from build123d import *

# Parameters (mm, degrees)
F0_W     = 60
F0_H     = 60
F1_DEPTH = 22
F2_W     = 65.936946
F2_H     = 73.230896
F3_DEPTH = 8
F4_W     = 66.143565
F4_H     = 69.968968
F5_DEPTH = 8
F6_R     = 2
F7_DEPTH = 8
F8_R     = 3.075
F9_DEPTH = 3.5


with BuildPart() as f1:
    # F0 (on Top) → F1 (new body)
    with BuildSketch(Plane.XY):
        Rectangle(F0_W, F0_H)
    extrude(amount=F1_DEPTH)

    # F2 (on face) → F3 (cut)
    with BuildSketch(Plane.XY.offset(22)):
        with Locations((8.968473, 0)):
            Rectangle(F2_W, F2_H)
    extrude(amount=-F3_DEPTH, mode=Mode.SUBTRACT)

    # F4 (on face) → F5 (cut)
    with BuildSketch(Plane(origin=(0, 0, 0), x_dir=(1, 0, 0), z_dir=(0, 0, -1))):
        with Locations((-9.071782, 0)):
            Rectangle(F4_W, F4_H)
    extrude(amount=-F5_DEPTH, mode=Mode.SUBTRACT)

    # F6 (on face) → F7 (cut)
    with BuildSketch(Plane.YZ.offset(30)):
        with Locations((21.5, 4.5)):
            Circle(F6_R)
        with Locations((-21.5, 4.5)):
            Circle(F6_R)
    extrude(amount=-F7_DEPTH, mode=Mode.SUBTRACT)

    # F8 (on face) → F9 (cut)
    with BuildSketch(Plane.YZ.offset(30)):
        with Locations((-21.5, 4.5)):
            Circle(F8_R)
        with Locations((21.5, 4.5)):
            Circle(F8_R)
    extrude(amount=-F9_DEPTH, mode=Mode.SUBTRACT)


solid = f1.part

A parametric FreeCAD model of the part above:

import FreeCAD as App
import Part
import Sketcher

V = App.Vector


def add_polygon(sketch, points):
    """Adds a closed chain of lines whose ends are joined by coincident constraints."""
    first, n = sketch.GeometryCount, len(points)
    for a, b in zip(points, points[1:] + points[:1]):
        sketch.addGeometry(Part.LineSegment(App.Vector(*a, 0), App.Vector(*b, 0)), False)
    for i in range(n):
        sketch.addConstraint(Sketcher.Constraint("Coincident", first + i, 2, first + (i + 1) % n, 1))

doc = App.newDocument("Part")
params = doc.addObject("Spreadsheet::Sheet", "Params")
for row, (alias, value) in enumerate([
    ("sketch1_width", "60 mm"),
    ("pad1_length", "22 mm"),
    ("pocket1_length", "8 mm"),
    ("pocket2_length", "8 mm"),
    ("sketch4_diameter", "4 mm"),
    ("pocket3_length", "8 mm"),
    ("sketch5_diameter", "6.15 mm"),
    ("pocket4_length", "3.5 mm"),
], start=1):
    params.set(f"A{row}", alias)
    params.set(f"B{row}", "=" + value)
    params.setAlias(f"B{row}", alias)

body = doc.addObject("PartDesign::Body", "Body")

# Sketch on XY plane
sketch1 = doc.addObject("Sketcher::SketchObject", "Sketch")
body.addObject(sketch1)
sketch1.AttachmentSupport = (doc.XY_Plane, [""])
sketch1.MapMode = "FlatFace"
add_polygon(sketch1, [(-30, 30), (-30, -30), (30, -30), (30, 30)])  # lines 0-3
sketch1.addConstraint(Sketcher.Constraint("Vertical", 0))
sketch1.addConstraint(Sketcher.Constraint("Horizontal", 1))
sketch1.addConstraint(Sketcher.Constraint("Vertical", 2))
sketch1.addConstraint(Sketcher.Constraint("Horizontal", 3))
sketch1.addConstraint(Sketcher.Constraint("Symmetric", 0, 2, 2, 2, -1, 1))
sketch1.addConstraint(Sketcher.Constraint("Equal", 3, 0))
sketch1.addConstraint(Sketcher.Constraint("DistanceX", 1, 1, 1, 2, 60.0))
sketch1.setExpression("Constraints[10]", "Params.sketch1_width")
pad1 = doc.addObject("PartDesign::Pad", "Pad")
body.addObject(pad1)
pad1.Profile = sketch1
pad1.setExpression("Length", "Params.pad1_length")

# Sketch on XY plane
sketch2 = doc.addObject("Sketcher::SketchObject", "Sketch001")
body.addObject(sketch2)
sketch2.AttachmentSupport = (doc.XY_Plane, [""])
sketch2.MapMode = "FlatFace"
sketch2.AttachmentOffset = App.Placement(V(0, 0, 22), App.Rotation())
add_polygon(sketch2, [(-24, 37), (-24, -37), (42, -37), (42, 37)])  # lines 0-3
sketch2.addConstraint(Sketcher.Constraint("Vertical", 0))
sketch2.addConstraint(Sketcher.Constraint("Horizontal", 1))
sketch2.addConstraint(Sketcher.Constraint("Vertical", 2))
sketch2.addConstraint(Sketcher.Constraint("Horizontal", 3))
sketch2.addConstraint(Sketcher.Constraint("DistanceX", 0, 2, -1, 1, 24.0))
sketch2.addConstraint(Sketcher.Constraint("DistanceX", 1, 1, 1, 2, 65.936946))
sketch2.addConstraint(Sketcher.Constraint("DistanceY", 0, 2, 0, 1, 73.230896))
sketch2.addConstraint(Sketcher.Constraint("DistanceY", 0, 2, -1, 1, 36.615448))
pocket1 = doc.addObject("PartDesign::Pocket", "Pocket")
body.addObject(pocket1)
pocket1.Profile = sketch2
pocket1.setExpression("Length", "Params.pocket1_length")

# Sketch on XY plane
sketch3 = doc.addObject("Sketcher::SketchObject", "Sketch002")
body.addObject(sketch3)
sketch3.AttachmentSupport = (doc.XY_Plane, [""])
sketch3.MapMode = "FlatFace"
add_polygon(sketch3, [(-42, -35), (-42, 35), (24, 35), (24, -35)])  # lines 0-3
sketch3.addConstraint(Sketcher.Constraint("Vertical", 0))
sketch3.addConstraint(Sketcher.Constraint("Horizontal", 1))
sketch3.addConstraint(Sketcher.Constraint("Vertical", 2))
sketch3.addConstraint(Sketcher.Constraint("Horizontal", 3))
sketch3.addConstraint(Sketcher.Constraint("DistanceX", -1, 1, 1, 2, 24.0))
sketch3.addConstraint(Sketcher.Constraint("DistanceY", 0, 1, 0, 2, 69.968968))
sketch3.addConstraint(Sketcher.Constraint("DistanceX", 1, 1, 1, 2, 66.143565))
sketch3.addConstraint(Sketcher.Constraint("DistanceY", -1, 1, 0, 2, 34.984484))
pocket2 = doc.addObject("PartDesign::Pocket", "Pocket001")
body.addObject(pocket2)
pocket2.Profile = sketch3
pocket2.setExpression("Length", "Params.pocket2_length")
pocket2.Reversed = True

# Sketch on YZ plane
sketch4 = doc.addObject("Sketcher::SketchObject", "Sketch003")
body.addObject(sketch4)
sketch4.AttachmentSupport = (doc.YZ_Plane, [""])
sketch4.MapMode = "FlatFace"
sketch4.AttachmentOffset = App.Placement(V(0, 0, 30), App.Rotation())
sketch4.addGeometry(Part.Circle(V(21.5, 4.5, 0), V(0, 0, 1), 2), False)
sketch4.addGeometry(Part.Circle(V(-21.5, 4.5, 0), V(0, 0, 1), 2), False)
sketch4.addConstraint(Sketcher.Constraint("Equal", 0, 1))
sketch4.addConstraint(Sketcher.Constraint("Symmetric", 0, 3, 1, 3, -2))
sketch4.addConstraint(Sketcher.Constraint("Diameter", 0, 4.0))
sketch4.addConstraint(Sketcher.Constraint("DistanceX", 1, 3, 0, 3, 43.0))
sketch4.addConstraint(Sketcher.Constraint("DistanceY", -1, 1, 0, 3, 4.5))
sketch4.setExpression("Constraints[2]", "Params.sketch4_diameter")
pocket3 = doc.addObject("PartDesign::Pocket", "Pocket002")
body.addObject(pocket3)
pocket3.Profile = sketch4
pocket3.setExpression("Length", "Params.pocket3_length")

# Sketch on YZ plane
sketch5 = doc.addObject("Sketcher::SketchObject", "Sketch004")
body.addObject(sketch5)
sketch5.AttachmentSupport = (doc.YZ_Plane, [""])
sketch5.MapMode = "FlatFace"
sketch5.AttachmentOffset = App.Placement(V(0, 0, 30), App.Rotation())
sketch5.addGeometry(Part.Circle(V(-21.5, 4.5, 0), V(0, 0, 1), 3.1), False)
sketch5.addGeometry(Part.Circle(V(21.5, 4.5, 0), V(0, 0, 1), 3.1), False)
sketch5.addConstraint(Sketcher.Constraint("Equal", 0, 1))
sketch5.addConstraint(Sketcher.Constraint("Symmetric", 0, 3, 1, 3, -2))
sketch5.addConstraint(Sketcher.Constraint("Diameter", 0, 6.15))
sketch5.addConstraint(Sketcher.Constraint("DistanceX", 0, 3, 1, 3, 43.0))
sketch5.addConstraint(Sketcher.Constraint("DistanceY", -1, 1, 0, 3, 4.5))
sketch5.setExpression("Constraints[2]", "Params.sketch5_diameter")
pocket4 = doc.addObject("PartDesign::Pocket", "Pocket003")
body.addObject(pocket4)
pocket4.Profile = sketch5
pocket4.setExpression("Length", "Params.pocket4_length")

doc.recompute()
